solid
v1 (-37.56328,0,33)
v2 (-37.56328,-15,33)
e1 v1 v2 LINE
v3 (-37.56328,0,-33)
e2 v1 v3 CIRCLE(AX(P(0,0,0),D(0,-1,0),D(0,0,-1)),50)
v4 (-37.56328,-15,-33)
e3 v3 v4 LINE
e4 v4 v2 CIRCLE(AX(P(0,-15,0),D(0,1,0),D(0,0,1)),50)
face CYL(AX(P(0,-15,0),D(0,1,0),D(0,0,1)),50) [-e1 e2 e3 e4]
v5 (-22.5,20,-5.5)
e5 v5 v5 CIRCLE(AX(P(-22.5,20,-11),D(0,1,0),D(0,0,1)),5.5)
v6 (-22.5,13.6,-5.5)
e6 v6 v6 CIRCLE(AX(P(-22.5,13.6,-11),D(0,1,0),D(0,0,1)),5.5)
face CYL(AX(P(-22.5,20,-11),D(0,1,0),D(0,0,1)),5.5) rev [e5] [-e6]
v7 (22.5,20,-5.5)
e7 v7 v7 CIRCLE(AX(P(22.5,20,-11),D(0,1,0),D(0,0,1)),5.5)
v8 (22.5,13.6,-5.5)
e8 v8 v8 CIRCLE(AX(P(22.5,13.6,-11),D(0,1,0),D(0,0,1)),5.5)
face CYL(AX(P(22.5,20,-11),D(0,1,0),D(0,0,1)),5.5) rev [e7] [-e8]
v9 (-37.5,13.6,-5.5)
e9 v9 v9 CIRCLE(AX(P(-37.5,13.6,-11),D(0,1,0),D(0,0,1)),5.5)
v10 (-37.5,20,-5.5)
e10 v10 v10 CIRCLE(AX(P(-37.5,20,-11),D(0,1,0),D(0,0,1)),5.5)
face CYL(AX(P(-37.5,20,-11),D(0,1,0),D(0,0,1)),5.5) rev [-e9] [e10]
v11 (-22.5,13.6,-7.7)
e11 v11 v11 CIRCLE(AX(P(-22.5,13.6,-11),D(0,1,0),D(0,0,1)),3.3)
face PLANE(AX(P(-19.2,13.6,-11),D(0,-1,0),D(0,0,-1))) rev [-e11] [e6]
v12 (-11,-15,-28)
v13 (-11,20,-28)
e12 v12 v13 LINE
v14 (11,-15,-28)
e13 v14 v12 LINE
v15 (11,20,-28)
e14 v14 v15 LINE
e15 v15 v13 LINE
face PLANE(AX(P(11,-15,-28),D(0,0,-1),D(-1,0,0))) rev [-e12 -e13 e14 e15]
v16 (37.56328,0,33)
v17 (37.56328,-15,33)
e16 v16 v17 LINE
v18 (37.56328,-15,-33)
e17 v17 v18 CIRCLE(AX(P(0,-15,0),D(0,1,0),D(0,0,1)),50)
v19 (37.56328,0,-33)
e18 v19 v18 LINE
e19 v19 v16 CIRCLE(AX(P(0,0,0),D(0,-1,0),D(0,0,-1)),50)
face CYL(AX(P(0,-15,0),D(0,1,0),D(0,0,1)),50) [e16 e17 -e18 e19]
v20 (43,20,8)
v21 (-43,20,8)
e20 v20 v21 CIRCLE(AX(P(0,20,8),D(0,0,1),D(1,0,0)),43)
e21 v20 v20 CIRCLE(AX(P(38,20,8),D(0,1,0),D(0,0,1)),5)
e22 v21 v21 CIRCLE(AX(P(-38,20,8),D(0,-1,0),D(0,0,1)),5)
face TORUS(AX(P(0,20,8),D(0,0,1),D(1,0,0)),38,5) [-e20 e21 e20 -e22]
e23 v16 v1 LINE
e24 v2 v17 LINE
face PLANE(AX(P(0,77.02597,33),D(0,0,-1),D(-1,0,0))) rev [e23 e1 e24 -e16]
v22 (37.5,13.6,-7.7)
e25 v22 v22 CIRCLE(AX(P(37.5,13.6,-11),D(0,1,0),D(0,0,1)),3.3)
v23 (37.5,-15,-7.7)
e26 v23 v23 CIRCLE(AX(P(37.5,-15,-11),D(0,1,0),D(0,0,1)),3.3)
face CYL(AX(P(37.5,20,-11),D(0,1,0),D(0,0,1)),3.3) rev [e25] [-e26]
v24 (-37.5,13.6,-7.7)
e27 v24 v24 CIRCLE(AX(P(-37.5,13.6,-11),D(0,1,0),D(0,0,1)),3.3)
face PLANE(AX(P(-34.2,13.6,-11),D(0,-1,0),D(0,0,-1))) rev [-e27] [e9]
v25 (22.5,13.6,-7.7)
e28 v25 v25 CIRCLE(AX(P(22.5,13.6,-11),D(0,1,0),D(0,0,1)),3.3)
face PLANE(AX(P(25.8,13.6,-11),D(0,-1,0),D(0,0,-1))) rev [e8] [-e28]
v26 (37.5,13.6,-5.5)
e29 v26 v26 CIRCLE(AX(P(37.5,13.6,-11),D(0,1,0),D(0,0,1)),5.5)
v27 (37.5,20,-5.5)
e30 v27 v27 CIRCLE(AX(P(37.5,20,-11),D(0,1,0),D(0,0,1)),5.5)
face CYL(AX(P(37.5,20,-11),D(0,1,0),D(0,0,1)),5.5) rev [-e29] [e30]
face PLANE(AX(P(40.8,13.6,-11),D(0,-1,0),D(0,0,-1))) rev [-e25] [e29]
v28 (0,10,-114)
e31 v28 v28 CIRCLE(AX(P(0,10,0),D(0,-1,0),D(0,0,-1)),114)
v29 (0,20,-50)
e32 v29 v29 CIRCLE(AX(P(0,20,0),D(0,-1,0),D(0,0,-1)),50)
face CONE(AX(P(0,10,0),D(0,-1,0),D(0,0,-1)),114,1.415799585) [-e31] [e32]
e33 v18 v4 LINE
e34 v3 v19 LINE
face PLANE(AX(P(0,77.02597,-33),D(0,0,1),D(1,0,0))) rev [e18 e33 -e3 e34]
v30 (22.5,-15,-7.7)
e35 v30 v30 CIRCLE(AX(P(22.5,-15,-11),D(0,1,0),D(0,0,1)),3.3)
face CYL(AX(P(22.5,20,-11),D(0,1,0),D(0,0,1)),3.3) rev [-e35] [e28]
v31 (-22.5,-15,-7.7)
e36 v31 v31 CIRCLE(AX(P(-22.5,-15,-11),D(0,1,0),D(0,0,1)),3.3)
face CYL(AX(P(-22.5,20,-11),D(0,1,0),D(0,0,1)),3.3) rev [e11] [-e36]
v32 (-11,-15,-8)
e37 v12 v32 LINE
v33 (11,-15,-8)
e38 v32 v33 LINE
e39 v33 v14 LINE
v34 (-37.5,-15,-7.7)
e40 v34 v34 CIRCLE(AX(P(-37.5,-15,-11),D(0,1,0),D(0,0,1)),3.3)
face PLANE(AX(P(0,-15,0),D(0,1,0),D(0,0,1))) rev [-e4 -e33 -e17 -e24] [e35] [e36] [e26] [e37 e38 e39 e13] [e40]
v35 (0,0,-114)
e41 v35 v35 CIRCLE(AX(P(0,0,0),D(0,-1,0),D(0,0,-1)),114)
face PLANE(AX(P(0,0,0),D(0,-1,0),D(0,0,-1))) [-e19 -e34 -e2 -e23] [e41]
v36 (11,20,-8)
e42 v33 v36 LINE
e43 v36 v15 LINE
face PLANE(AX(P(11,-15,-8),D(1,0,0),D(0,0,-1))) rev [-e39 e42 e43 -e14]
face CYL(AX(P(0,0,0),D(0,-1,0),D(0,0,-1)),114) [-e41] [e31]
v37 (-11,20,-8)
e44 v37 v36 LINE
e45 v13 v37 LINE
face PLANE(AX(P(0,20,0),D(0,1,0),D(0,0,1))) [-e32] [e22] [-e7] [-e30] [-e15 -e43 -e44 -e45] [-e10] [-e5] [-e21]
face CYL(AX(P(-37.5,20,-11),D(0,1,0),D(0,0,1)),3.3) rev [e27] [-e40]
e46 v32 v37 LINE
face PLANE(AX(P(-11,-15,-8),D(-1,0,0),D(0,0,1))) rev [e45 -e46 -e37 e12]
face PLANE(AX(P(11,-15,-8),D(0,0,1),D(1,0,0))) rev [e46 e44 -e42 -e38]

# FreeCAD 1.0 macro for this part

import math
import FreeCAD as App
import Part
import Sketcher

V = App.Vector

doc = App.newDocument("Part")
body = doc.addObject("PartDesign::Body", "Body")

sketch1 = body.newObject("Sketcher::SketchObject", "Sketch")
sketch1.AttachmentSupport = (doc.getObject("YZ_Plane"), [""])
sketch1.MapMode = "FlatFace"
sketch1.addGeometry([
    Part.LineSegment(V(20, 0, 0), V(0, 0, 0)),
    Part.LineSegment(V(0, 0, 0), V(0, -114, 0)),
    Part.LineSegment(V(0, -114, 0), V(10, -114, 0)),
    Part.LineSegment(V(10, -114, 0), V(20, -50, 0)),
    Part.LineSegment(V(20, -50, 0), V(20, 0, 0)),
], False)
sketch1.addConstraint([
    Sketcher.Constraint("Coincident", 0, 2, 1, 1),
    Sketcher.Constraint("Coincident", 1, 2, 2, 1),
    Sketcher.Constraint("Coincident", 2, 2, 3, 1),
    Sketcher.Constraint("Coincident", 3, 2, 4, 1),
    Sketcher.Constraint("Coincident", 4, 2, 0, 1),
    Sketcher.Constraint("Horizontal", 0),
    Sketcher.Constraint("Vertical", 1),
    Sketcher.Constraint("Horizontal", 2),
    Sketcher.Constraint("Vertical", 4),
    Sketcher.Constraint("Coincident", 0, 2, -1, 1),
    Sketcher.Constraint("DistanceX", 0, 2, 0, 1, 20.0),
    Sketcher.Constraint("DistanceX", 2, 1, 2, 2, 10.0),
    Sketcher.Constraint("DistanceY", 1, 2, 1, 1, 114.0),
    Sketcher.Constraint("DistanceY", 4, 1, 4, 2, 50.0),
])
revolution = body.newObject("PartDesign::Revolution", "Revolution")
revolution.Profile = sketch1
revolution.ReferenceAxis = (sketch1, ["H_Axis"])
revolution.Angle = 360

sketch2 = body.newObject("Sketcher::SketchObject", "Sketch001")
sketch2.AttachmentSupport = (doc.getObject("XZ_Plane"), [""])
sketch2.MapMode = "FlatFace"
sketch2.AttachmentOffset = App.Placement(V(0, 0, -20), App.Rotation())
sketch2.addGeometry(Part.Circle(V(0, 0, 0), V(0, 0, 1), 50), False)
sketch2.addConstraint([
    Sketcher.Constraint("Coincident", 0, 3, -1, 1),
    Sketcher.Constraint("Diameter", 0, 100.0),
])
pad1 = body.newObject("PartDesign::Pad", "Pad")
pad1.Profile = sketch2
pad1.Length = 35

sketch3 = body.newObject("Sketcher::SketchObject", "Sketch002")
sketch3.AttachmentSupport = (doc.getObject("XZ_Plane"), [""])
sketch3.MapMode = "FlatFace"
sketch3.AttachmentOffset = App.Placement(V(0, 0, -20), App.Rotation())
sketch3.addGeometry([
    Part.LineSegment(V(-11, -28, 0), V(-11, -8, 0)),
    Part.LineSegment(V(-11, -8, 0), V(11, -8, 0)),
    Part.LineSegment(V(11, -8, 0), V(11, -28, 0)),
    Part.LineSegment(V(11, -28, 0), V(-11, -28, 0)),
], False)
sketch3.addConstraint([
    Sketcher.Constraint("Coincident", 0, 2, 1, 1),
    Sketcher.Constraint("Coincident", 1, 2, 2, 1),
    Sketcher.Constraint("Coincident", 2, 2, 3, 1),
    Sketcher.Constraint("Coincident", 3, 2, 0, 1),
    Sketcher.Constraint("Vertical", 0),
    Sketcher.Constraint("Horizontal", 1),
    Sketcher.Constraint("Vertical", 2),
    Sketcher.Constraint("Horizontal", 3),
    Sketcher.Constraint("DistanceX", 1, 1, 1, 2, 22.0),
    Sketcher.Constraint("DistanceY", 0, 1, 0, 2, 20.0),
    Sketcher.Constraint("DistanceX", 0, 2, -1, 1, 11.0),
    Sketcher.Constraint("DistanceY", 0, 2, -1, 1, 8.0),
])
pocket1 = body.newObject("PartDesign::Pocket", "Pocket")
pocket1.Profile = sketch3
pocket1.Type = "ThroughAll"
pocket1.Reversed = True

sketch4 = body.newObject("Sketcher::SketchObject", "Sketch003")
sketch4.AttachmentSupport = (doc.getObject("XZ_Plane"), [""])
sketch4.MapMode = "FlatFace"
sketch4.AttachmentOffset = App.Placement(V(0, 0, -20), App.Rotation())
sketch4.addGeometry([
    Part.Circle(V(37.5, -11, 0), V(0, 0, 1), 3.3),
    Part.Circle(V(22.5, -11, 0), V(0, 0, 1), 3.3),
    Part.Circle(V(-22.5, -11, 0), V(0, 0, 1), 3.3),
    Part.Circle(V(-37.5, -11, 0), V(0, 0, 1), 3.3),
], False)
sketch4.addConstraint([
    Sketcher.Constraint("Equal", 0, 1),
    Sketcher.Constraint("Equal", 1, 2),
    Sketcher.Constraint("Equal", 2, 3),
    Sketcher.Constraint("Symmetric", 1, 3, 2, 3, -2),
    Sketcher.Constraint("Symmetric", 0, 3, 3, 3, -2),
    Sketcher.Constraint("Horizontal", 0, 3, 1, 3),
    Sketcher.Constraint("Diameter", 0, 6.6),
    Sketcher.Constraint("DistanceY", 0, 3, -1, 1, 11.0),
    Sketcher.Constraint("DistanceX", 1, 3, 0, 3, 15.0),
    Sketcher.Constraint("DistanceX", 2, 3, 1, 3, 45.0),
])
doc.recompute()
hole = body.newObject("PartDesign::Hole", "Hole")
hole.Profile = sketch4
hole.ThreadType = "None"
hole.Diameter = 6.6
hole.DepthType = "ThroughAll"
hole.HoleCutType = "Counterbore"
hole.HoleCutDiameter = 11
hole.HoleCutDepth = 6.4
hole.Reversed = True

sketch5 = body.newObject("Sketcher::SketchObject", "Sketch004")
sketch5.AttachmentSupport = (doc.getObject("XZ_Plane"), [""])
sketch5.MapMode = "FlatFace"
sketch5.addGeometry([
    Part.LineSegment(V(-37.56328, 33, 0), V(37.56328, 33, 0)),
    Part.ArcOfCircle(Part.Circle(V(0, 0, 0), V(0, 0, 1), 50), math.radians(41.299873), math.radians(138.700127)),
    Part.ArcOfCircle(Part.Circle(V(0, 0, 0), V(0, 0, 1), 50), math.radians(-138.700127), math.radians(-41.299873)),
    Part.LineSegment(V(37.56328, -33, 0), V(-37.56328, -33, 0)),
], False)
sketch5.addConstraint([
    Sketcher.Constraint("Coincident", 0, 1, 1, 2),
    Sketcher.Constraint("Coincident", 1, 1, 0, 2),
    Sketcher.Constraint("Coincident", 2, 1, 3, 2),
    Sketcher.Constraint("Coincident", 3, 1, 2, 2),
    Sketcher.Constraint("Horizontal", 0),
    Sketcher.Constraint("Horizontal", 3),
    Sketcher.Constraint("Coincident", 1, 3, -1, 1),
    Sketcher.Constraint("Coincident", 2, 3, -1, 1),
    Sketcher.Constraint("Equal", 1, 2),
    Sketcher.Constraint("Vertical", 0, 1, 2, 1),
    Sketcher.Constraint("Radius", 1, 50.0),
    Sketcher.Constraint("DistanceY", -1, 1, 0, 1, 33.0),
])
pocket2 = body.newObject("PartDesign::Pocket", "Pocket001")
pocket2.Profile = sketch5
pocket2.Length = 15
pocket2.Reversed = True

sketch6 = body.newObject("Sketcher::SketchObject", "Sketch005")
sketch6.AttachmentSupport = (doc.getObject("XZ_Plane"), [""])
sketch6.MapMode = "FlatFace"
sketch6.AttachmentOffset = App.Placement(V(0, 0, -20), App.Rotation())
sketch6.addGeometry(Part.Circle(V(38, 8, 0), V(0, 0, 1), 5), False)
sketch6.addConstraint([
    Sketcher.Constraint("Diameter", 0, 10.0),
    Sketcher.Constraint("DistanceX", -1, 1, 0, 3, 38.0),
    Sketcher.Constraint("DistanceY", -1, 1, 0, 3, 8.0),
])

sketch7 = body.newObject("Sketcher::SketchObject", "Sketch006")
sketch7.AttachmentSupport = (doc.getObject("XY_Plane"), [""])
sketch7.MapMode = "FlatFace"
sketch7.AttachmentOffset = App.Placement(V(0, 0, 8), App.Rotation())
sketch7.addGeometry(Part.ArcOfCircle(Part.Circle(V(0, 20, 0), V(0, 0, 1), 37.792366), math.radians(0), math.radians(180)), False)
sketch7.addConstraint([
    Sketcher.Constraint("Symmetric", 0, 1, 0, 2, -2),
    Sketcher.Constraint("DistanceY", -1, 1, 0, 3, 20.0),
    Sketcher.Constraint("DistanceY", -1, 1, 0, 1, 20.0),
    Sketcher.Constraint("Radius", 0, 37.792366),
])
doc.recompute()

additivepipe = body.newObject("PartDesign::AdditivePipe", "AdditivePipe")
additivepipe.Profile = sketch6
additivepipe.Spine = (sketch7, ["Edge1"])

doc.recompute()
